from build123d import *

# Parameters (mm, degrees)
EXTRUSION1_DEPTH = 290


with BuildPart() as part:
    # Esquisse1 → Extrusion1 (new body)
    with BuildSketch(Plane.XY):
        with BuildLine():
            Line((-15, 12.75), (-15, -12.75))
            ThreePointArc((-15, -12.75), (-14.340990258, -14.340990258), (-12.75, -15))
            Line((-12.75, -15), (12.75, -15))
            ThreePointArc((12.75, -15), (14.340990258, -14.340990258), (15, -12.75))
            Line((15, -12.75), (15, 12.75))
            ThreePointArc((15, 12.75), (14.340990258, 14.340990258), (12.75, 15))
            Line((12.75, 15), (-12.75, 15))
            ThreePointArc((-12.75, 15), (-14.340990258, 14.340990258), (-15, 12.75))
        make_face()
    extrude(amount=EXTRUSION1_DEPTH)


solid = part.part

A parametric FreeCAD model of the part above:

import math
import FreeCAD as App
import Part
import Sketcher

doc = App.newDocument("Part")
body = doc.addObject("PartDesign::Body", "Body")

sketch1 = body.newObject("Sketcher::SketchObject", "Sketch")
sketch1.AttachmentSupport = (doc.getObject("XY_Plane"), [""])
sketch1.MapMode = "FlatFace"
sketch1.addGeometry(Part.LineSegment(App.Vector(-15, 12.8, 0), App.Vector(-15, -12.8, 0)), False)
sketch1.addGeometry(Part.ArcOfCircle(Part.Circle(App.Vector(-12.8, -12.8, 0), App.Vector(0, 0, 1), 2.2), math.radians(180), math.radians(270)), False)
sketch1.addGeometry(Part.LineSegment(App.Vector(-12.8, -15, 0), App.Vector(12.8, -15, 0)), False)
sketch1.addGeometry(Part.ArcOfCircle(Part.Circle(App.Vector(12.8, -12.8, 0), App.Vector(0, 0, 1), 2.2), math.radians(-90), math.radians(0)), False)
sketch1.addGeometry(Part.LineSegment(App.Vector(15, -12.8, 0), App.Vector(15, 12.8, 0)), False)
sketch1.addGeometry(Part.ArcOfCircle(Part.Circle(App.Vector(12.8, 12.8, 0), App.Vector(0, 0, 1), 2.2), math.radians(0), math.radians(90)), False)
sketch1.addGeometry(Part.LineSegment(App.Vector(12.8, 15, 0), App.Vector(-12.8, 15, 0)), False)
sketch1.addGeometry(Part.ArcOfCircle(Part.Circle(App.Vector(-12.8, 12.8, 0), App.Vector(0, 0, 1), 2.2), math.radians(90), math.radians(180)), False)
sketch1.addConstraint(Sketcher.Constraint("Tangent", 0, 2, 1, 1))
sketch1.addConstraint(Sketcher.Constraint("Tangent", 1, 2, 2, 1))
sketch1.addConstraint(Sketcher.Constraint("Tangent", 2, 2, 3, 1))
sketch1.addConstraint(Sketcher.Constraint("Tangent", 3, 2, 4, 1))
sketch1.addConstraint(Sketcher.Constraint("Tangent", 4, 2, 5, 1))
sketch1.addConstraint(Sketcher.Constraint("Tangent", 5, 2, 6, 1))
sketch1.addConstraint(Sketcher.Constraint("Tangent", 6, 2, 7, 1))
sketch1.addConstraint(Sketcher.Constraint("Tangent", 7, 2, 0, 1))
sketch1.addConstraint(Sketcher.Constraint("Vertical", 0))
sketch1.addConstraint(Sketcher.Constraint("Horizontal", 2))
sketch1.addConstraint(Sketcher.Constraint("Vertical", 4))
sketch1.addConstraint(Sketcher.Constraint("Horizontal", 6))
sketch1.addConstraint(Sketcher.Constraint("Equal", 1, 3))
sketch1.addConstraint(Sketcher.Constraint("Equal", 3, 5))
sketch1.addConstraint(Sketcher.Constraint("Equal", 5, 7))
sketch1.addConstraint(Sketcher.Constraint("Symmetric", 1, 3, 5, 3, -1, 1))
sketch1.addConstraint(Sketcher.Constraint("Equal", 6, 0))
sketch1.addConstraint(Sketcher.Constraint("Radius", 1, 2.25))
sketch1.addConstraint(Sketcher.Constraint("DistanceX", 2, 1, 2, 2, 25.5))
pad1 = body.newObject("PartDesign::Pad", "Pad")
pad1.Profile = sketch1
pad1.Length = 290

doc.recompute()
